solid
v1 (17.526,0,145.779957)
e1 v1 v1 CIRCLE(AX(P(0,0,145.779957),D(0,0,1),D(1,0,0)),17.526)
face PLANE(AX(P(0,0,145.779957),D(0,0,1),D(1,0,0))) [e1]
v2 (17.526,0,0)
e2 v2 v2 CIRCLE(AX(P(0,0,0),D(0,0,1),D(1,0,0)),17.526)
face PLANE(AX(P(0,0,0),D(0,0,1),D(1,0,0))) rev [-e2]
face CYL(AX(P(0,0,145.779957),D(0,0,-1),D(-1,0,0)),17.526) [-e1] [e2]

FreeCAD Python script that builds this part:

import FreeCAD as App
import Part
import Sketcher

V = App.Vector
Q = App.Units.Quantity

doc = App.newDocument("Part")
params = doc.addObject("Spreadsheet::Sheet", "Params")
for row, (alias, value) in enumerate([
    ("sketch1_diameter", "1.38 in"),
    ("pad1_length", "145.779957 mm"),
], start=1):
    params.set(f"A{row}", alias)
    params.set(f"B{row}", "=" + value)
    params.setAlias(f"B{row}", alias)

body = doc.addObject("PartDesign::Body", "Body")

sketch1 = doc.addObject("Sketcher::SketchObject", "Sketch")
body.addObject(sketch1)
sketch1.AttachmentSupport = (doc.XY_Plane, [""])
sketch1.MapMode = "FlatFace"
sketch1.addGeometry(Part.Circle(V(0, 0, 0), V(0, 0, 1), 18), False)
sketch1.addConstraint(Sketcher.Constraint("Coincident", 0, 3, -1, 1))
sketch1.addConstraint(Sketcher.Constraint("Diameter", 0, Q("1.38 in")))
sketch1.setExpression("Constraints[1]", "Params.sketch1_diameter")
pad1 = doc.addObject("PartDesign::Pad", "Pad")
body.addObject(pad1)
pad1.Profile = sketch1
pad1.setExpression("Length", "Params.pad1_length")

doc.recompute()
